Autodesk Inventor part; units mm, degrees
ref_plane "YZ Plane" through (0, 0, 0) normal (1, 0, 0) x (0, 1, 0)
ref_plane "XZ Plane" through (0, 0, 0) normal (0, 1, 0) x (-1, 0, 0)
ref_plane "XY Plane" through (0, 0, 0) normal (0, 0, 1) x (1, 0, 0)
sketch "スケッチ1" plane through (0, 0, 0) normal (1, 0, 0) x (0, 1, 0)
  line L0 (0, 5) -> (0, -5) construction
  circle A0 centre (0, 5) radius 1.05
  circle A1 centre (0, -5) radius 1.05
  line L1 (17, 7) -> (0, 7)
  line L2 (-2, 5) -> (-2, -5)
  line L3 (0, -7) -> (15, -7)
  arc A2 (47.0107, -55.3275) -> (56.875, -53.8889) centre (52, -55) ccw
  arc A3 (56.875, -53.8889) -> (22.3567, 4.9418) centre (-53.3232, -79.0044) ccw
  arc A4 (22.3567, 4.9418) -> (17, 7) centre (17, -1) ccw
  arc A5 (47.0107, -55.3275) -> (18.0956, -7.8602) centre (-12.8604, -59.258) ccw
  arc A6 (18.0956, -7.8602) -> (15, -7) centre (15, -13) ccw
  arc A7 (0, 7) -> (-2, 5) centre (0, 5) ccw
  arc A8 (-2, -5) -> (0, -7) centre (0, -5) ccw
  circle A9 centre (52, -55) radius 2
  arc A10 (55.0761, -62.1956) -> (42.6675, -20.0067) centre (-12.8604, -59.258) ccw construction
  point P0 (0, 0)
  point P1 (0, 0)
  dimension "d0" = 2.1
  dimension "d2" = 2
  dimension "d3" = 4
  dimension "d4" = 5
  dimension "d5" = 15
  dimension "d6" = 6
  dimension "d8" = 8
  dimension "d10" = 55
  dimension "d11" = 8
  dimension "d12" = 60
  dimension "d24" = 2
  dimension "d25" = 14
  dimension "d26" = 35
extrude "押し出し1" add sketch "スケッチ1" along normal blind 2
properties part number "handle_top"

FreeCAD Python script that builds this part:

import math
import FreeCAD as App
import Part
import Sketcher

V = App.Vector
Q = App.Units.Quantity

doc = App.newDocument("Part")
body = doc.addObject("PartDesign::Body", "Body")

# Sketch on YZ plane
sketch1 = body.newObject("Sketcher::SketchObject", "Sketch")
sketch1.AttachmentSupport = (doc.getObject("YZ_Plane"), [""])
sketch1.MapMode = "FlatFace"
sketch1.addGeometry(Part.ArcOfCircle(Part.Circle(V(17, -1, 0), V(0, 0, 1), 7.999951), math.radians(47.96445), math.radians(90)), False)
sketch1.addGeometry(Part.LineSegment(V(17, 7, 0), V(0, 7, 0)), False)
sketch1.addGeometry(Part.ArcOfCircle(Part.Circle(V(0, 5, 0), V(0, 0, 1), 2), math.radians(90), math.radians(180)), False)
sketch1.addGeometry(Part.LineSegment(V(-2, 5, 0), V(-2, -5, 0)), False)
sketch1.addGeometry(Part.ArcOfCircle(Part.Circle(V(0, -5, 0), V(0, 0, 1), 2), math.radians(180), math.radians(270)), False)
sketch1.addGeometry(Part.LineSegment(V(0, -7, 0), V(15, -7, 0)), False)
sketch1.addGeometry(Part.ArcOfCircle(Part.Circle(V(15, -13, 0), V(0, 0, 1), 6.000024), math.radians(58.940275), math.radians(90)), False)
sketch1.addGeometry(Part.ArcOfCircle(Part.Circle(V(-12.8604, -59.258, 0), V(0, 0, 1), 59.999979), math.radians(3.756042), math.radians(58.940177)), False)
sketch1.addGeometry(Part.ArcOfCircle(Part.Circle(V(52, -55, 0), V(0, 0, 1), 5.000037), math.radians(-176.244466), math.radians(12.839414)), False)
sketch1.addGeometry(Part.ArcOfCircle(Part.Circle(V(-53.3232, -79.0044, 0), V(0, 0, 1), 113.024031), math.radians(12.839094), math.radians(47.964436)), False)
sketch1.addGeometry(Part.Circle(V(52, -55, 0), V(0, 0, 1), 2), False)
sketch1.addGeometry(Part.Circle(V(0, -5, 0), V(0, 0, 1), 1.05), False)
sketch1.addGeometry(Part.Circle(V(0, 5, 0), V(0, 0, 1), 1.05), False)
sketch1.addConstraint(Sketcher.Constraint("Tangent", 0, 2, 1, 1))
sketch1.addConstraint(Sketcher.Constraint("Tangent", 1, 2, 2, 1))
sketch1.addConstraint(Sketcher.Constraint("Tangent", 2, 2, 3, 1))
sketch1.addConstraint(Sketcher.Constraint("Tangent", 3, 2, 4, 1))
sketch1.addConstraint(Sketcher.Constraint("Tangent", 4, 2, 5, 1))
sketch1.addConstraint(Sketcher.Constraint("Tangent", 5, 2, 6, 2))
sketch1.addConstraint(Sketcher.Constraint("Tangent", 6, 1, 7, 2))
sketch1.addConstraint(Sketcher.Constraint("Tangent", 7, 1, 8, 1))
sketch1.addConstraint(Sketcher.Constraint("Tangent", 8, 2, 9, 1))
sketch1.addConstraint(Sketcher.Constraint("Tangent", 9, 2, 0, 1))
sketch1.addConstraint(Sketcher.Constraint("Horizontal", 1))
sketch1.addConstraint(Sketcher.Constraint("Vertical", 3))
sketch1.addConstraint(Sketcher.Constraint("Horizontal", 5))
sketch1.addConstraint(Sketcher.Constraint("Coincident", 10, 3, 8, 3))
sketch1.addConstraint(Sketcher.Constraint("Coincident", 11, 3, 4, 3))
sketch1.addConstraint(Sketcher.Constraint("Coincident", 12, 3, 2, 3))
sketch1.addConstraint(Sketcher.Constraint("Equal", 2, 4))
sketch1.addConstraint(Sketcher.Constraint("Equal", 4, 10))
sketch1.addConstraint(Sketcher.Constraint("Equal", 11, 12))
sketch1.addConstraint(Sketcher.Constraint("Symmetric", 2, 3, 4, 3, -1, 1))
sketch1.addConstraint(Sketcher.Constraint("Diameter", 10, Q("4 mm")))
sketch1.addConstraint(Sketcher.Constraint("Radius", 0, Q("8 mm")))
sketch1.addConstraint(Sketcher.Constraint("Radius", 6, Q("6 mm")))
sketch1.addConstraint(Sketcher.Constraint("Radius", 7, Q("60 mm")))
sketch1.addConstraint(Sketcher.Constraint("Radius", 8, Q("5 mm")))
sketch1.addConstraint(Sketcher.Constraint("Diameter", 11, Q("2.1 mm")))
sketch1.addConstraint(Sketcher.Constraint("DistanceX", 5, 1, 5, 2, Q("15 mm")))
sketch1.addConstraint(Sketcher.Constraint("DistanceY", -1, 1, 2, 3, Q("5 mm")))
sketch1.addConstraint(Sketcher.Constraint("DistanceY", 8, 3, -1, 1, Q("55 mm")))
sketch1.addConstraint(Sketcher.Constraint("DistanceX", 6, 3, 0, 3, Q("2 mm")))
sketch1.addConstraint(Sketcher.Constraint("DistanceX", 0, 3, 8, 3, Q("35 mm")))
sketch1.addConstraint(Sketcher.Constraint("Radius", 9, Q("113.024 mm")))
pad1 = body.newObject("PartDesign::Pad", "Pad")
pad1.Profile = sketch1
pad1.Length = 2

doc.recompute()
